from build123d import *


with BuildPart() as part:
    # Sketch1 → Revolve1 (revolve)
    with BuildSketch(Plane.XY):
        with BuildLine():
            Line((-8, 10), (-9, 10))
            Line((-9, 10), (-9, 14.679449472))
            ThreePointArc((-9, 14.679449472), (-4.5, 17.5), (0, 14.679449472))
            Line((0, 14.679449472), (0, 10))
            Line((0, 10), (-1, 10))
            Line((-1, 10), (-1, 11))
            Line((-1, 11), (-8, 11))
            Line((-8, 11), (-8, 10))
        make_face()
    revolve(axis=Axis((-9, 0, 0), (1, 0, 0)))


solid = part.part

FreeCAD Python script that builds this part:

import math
import FreeCAD as App
import Part
import Sketcher
from FreeCAD import Vector
Q = App.Units.Quantity

doc = App.newDocument("Part")
body = doc.addObject("PartDesign::Body", "Body")

# Sketch on XY plane
sketch1 = body.newObject("Sketcher::SketchObject", "Sketch")
sketch1.AttachmentSupport = (doc.getObject("XY_Plane"), [""])
sketch1.MapMode = "FlatFace"
sketch1.addGeometry([
    Part.LineSegment(Vector(-9, 10, 0), Vector(-8, 10, 0)),  # 0
    Part.LineSegment(Vector(-8, 10, 0), Vector(-8, 11, 0)),  # 1
    Part.LineSegment(Vector(-8, 11, 0), Vector(-1, 11, 0)),  # 2
    Part.LineSegment(Vector(-1, 11, 0), Vector(-1, 10, 0)),  # 3
    Part.LineSegment(Vector(-1, 10, 0), Vector(0, 10, 0)),  # 4
    Part.LineSegment(Vector(0, 10, 0), Vector(0, 14.7, 0)),  # 5
    Part.ArcOfCircle(Part.Circle(Vector(-4.5, 12.5, 0), Vector(0, 0, 1), 5), math.radians(26), math.radians(154)),  # 6
    Part.LineSegment(Vector(-9, 14.7, 0), Vector(-9, 10, 0)),  # 7
], False)
sketch1.addConstraint([
    Sketcher.Constraint("Coincident", 0, 2, 1, 1),
    Sketcher.Constraint("Coincident", 1, 2, 2, 1),
    Sketcher.Constraint("Coincident", 2, 2, 3, 1),
    Sketcher.Constraint("Coincident", 3, 2, 4, 1),
    Sketcher.Constraint("Coincident", 4, 2, 5, 1),
    Sketcher.Constraint("Coincident", 5, 2, 6, 1),
    Sketcher.Constraint("Coincident", 6, 2, 7, 1),
    Sketcher.Constraint("Coincident", 7, 2, 0, 1),
    Sketcher.Constraint("Horizontal", 0),
    Sketcher.Constraint("Vertical", 1),
    Sketcher.Constraint("Horizontal", 2),
    Sketcher.Constraint("Vertical", 3),
    Sketcher.Constraint("Horizontal", 4),
    Sketcher.Constraint("Vertical", 5),
    Sketcher.Constraint("Vertical", 7),
    Sketcher.Constraint("PointOnObject", 4, 2, -2),
    Sketcher.Constraint("Horizontal", 0, 2, 3, 2),
    Sketcher.Constraint("Horizontal", 5, 2, 6, 2),
    Sketcher.Constraint("Equal", 0, 4),
    Sketcher.Constraint("Equal", 4, 1),
    Sketcher.Constraint("Radius", 6, Q("5 mm")),
    Sketcher.Constraint("DistanceX", 0, 1, 0, 2, Q("1 mm")),
    Sketcher.Constraint("DistanceX", 2, 1, 2, 2, Q("7 mm")),
    Sketcher.Constraint("DistanceY", -1, 1, 0, 2, Q("10 mm")),
    Sketcher.Constraint("DistanceY", -1, 1, 6, 3, Q("12.5 mm")),
])
revolution = body.newObject("PartDesign::Revolution", "Revolution")
revolution.Profile = sketch1
revolution.ReferenceAxis = (sketch1, ["H_Axis"])
revolution.Angle = 360

doc.recompute()
